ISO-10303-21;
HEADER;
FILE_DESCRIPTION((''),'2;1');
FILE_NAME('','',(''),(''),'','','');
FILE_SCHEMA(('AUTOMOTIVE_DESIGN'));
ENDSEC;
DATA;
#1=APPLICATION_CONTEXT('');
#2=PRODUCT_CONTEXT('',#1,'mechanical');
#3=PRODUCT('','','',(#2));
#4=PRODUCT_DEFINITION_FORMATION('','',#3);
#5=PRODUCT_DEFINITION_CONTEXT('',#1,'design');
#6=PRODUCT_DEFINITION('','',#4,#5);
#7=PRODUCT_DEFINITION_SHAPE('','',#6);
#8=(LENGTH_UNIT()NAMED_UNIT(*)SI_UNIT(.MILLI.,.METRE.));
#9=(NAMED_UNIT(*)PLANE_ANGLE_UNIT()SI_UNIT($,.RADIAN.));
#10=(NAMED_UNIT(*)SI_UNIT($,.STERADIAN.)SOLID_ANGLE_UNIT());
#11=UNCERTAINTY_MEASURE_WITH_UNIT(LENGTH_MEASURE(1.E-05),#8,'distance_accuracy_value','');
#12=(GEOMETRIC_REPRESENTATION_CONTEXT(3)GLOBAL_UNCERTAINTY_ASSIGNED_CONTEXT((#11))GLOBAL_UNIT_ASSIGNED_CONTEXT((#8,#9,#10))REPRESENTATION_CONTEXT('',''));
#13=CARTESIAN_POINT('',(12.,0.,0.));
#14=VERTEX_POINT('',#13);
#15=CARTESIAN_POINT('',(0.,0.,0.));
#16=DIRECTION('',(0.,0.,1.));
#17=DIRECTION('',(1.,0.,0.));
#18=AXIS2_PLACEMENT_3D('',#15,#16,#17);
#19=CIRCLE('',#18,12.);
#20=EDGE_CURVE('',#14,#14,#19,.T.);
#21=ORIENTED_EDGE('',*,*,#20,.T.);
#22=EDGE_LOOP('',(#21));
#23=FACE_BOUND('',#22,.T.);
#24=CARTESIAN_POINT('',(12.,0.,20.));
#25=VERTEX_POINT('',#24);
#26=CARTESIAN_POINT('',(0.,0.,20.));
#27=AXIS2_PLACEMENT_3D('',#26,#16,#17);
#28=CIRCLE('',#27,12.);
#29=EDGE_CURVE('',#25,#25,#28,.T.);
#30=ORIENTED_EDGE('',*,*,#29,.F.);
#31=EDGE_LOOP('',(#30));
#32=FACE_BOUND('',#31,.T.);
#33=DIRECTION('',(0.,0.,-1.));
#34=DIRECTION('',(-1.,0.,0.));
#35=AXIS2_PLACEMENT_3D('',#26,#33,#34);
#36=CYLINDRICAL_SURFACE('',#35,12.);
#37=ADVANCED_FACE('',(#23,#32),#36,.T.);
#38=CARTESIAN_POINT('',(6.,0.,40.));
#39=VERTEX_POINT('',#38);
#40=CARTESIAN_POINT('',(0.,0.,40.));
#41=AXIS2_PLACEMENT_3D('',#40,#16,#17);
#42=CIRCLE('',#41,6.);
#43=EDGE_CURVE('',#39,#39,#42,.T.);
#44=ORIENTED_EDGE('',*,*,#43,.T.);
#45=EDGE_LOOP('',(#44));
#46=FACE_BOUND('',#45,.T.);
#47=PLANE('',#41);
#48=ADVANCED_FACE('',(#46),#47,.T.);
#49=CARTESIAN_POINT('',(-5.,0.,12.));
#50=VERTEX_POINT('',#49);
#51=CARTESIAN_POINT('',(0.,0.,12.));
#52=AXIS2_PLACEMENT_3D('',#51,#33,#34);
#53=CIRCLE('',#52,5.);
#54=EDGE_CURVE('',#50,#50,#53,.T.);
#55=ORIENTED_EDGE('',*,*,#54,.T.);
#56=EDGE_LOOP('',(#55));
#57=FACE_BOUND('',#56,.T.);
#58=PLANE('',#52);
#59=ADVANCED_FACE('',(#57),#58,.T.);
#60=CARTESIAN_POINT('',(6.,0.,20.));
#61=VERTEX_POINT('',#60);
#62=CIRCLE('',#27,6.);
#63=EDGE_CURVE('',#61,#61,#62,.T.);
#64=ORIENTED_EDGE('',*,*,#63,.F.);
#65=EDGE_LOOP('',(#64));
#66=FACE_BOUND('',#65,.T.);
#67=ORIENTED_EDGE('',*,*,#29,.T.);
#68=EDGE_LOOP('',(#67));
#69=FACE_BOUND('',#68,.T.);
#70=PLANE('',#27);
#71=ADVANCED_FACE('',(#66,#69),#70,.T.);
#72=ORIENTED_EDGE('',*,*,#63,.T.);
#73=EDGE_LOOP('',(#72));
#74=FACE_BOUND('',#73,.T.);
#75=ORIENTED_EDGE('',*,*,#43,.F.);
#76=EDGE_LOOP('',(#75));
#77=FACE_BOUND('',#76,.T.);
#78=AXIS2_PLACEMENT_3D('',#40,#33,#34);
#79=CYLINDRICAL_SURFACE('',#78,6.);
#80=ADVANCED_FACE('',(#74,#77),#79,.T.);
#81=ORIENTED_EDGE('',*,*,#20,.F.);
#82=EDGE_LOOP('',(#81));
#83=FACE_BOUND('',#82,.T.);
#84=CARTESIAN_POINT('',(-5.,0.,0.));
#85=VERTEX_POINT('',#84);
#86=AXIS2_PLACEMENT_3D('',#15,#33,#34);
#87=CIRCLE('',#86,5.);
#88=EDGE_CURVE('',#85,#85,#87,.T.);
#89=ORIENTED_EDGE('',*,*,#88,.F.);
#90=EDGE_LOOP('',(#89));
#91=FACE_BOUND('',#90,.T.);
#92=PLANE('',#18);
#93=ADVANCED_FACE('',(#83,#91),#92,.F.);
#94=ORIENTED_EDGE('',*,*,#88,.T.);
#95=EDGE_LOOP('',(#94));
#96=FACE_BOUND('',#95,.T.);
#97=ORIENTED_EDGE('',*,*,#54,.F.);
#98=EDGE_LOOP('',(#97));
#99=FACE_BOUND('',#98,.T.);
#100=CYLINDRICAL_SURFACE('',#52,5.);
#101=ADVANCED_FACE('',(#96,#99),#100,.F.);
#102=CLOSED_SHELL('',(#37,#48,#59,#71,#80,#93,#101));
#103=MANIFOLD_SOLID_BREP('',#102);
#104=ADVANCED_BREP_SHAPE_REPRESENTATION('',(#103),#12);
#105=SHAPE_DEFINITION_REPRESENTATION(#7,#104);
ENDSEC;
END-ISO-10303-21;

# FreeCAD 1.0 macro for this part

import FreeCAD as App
import Part
import Sketcher
Q = App.Units.Quantity

doc = App.newDocument("Part")
body = doc.addObject("PartDesign::Body", "Body")

sketch1 = body.newObject("Sketcher::SketchObject", "Sketch")
sketch1.AttachmentSupport = (doc.getObject("XY_Plane"), [""])
sketch1.MapMode = "FlatFace"
sketch1.addGeometry(Part.Circle(App.Vector(0, 0, 0), App.Vector(0, 0, 1), 12), False)
sketch1.addConstraint([
    Sketcher.Constraint("Coincident", 0, 3, -1, 1),
    Sketcher.Constraint("Diameter", 0, Q("24 mm")),
])
pad1 = body.newObject("PartDesign::Pad", "Pad")
pad1.Profile = sketch1
pad1.Length = 20

sketch2 = body.newObject("Sketcher::SketchObject", "Sketch001")
sketch2.AttachmentSupport = (doc.getObject("XY_Plane"), [""])
sketch2.MapMode = "FlatFace"
sketch2.AttachmentOffset = App.Placement(App.Vector(0, 0, 20), App.Rotation())
sketch2.addGeometry(Part.Circle(App.Vector(0, 0, 0), App.Vector(0, 0, 1), 6), False)
sketch2.addConstraint([
    Sketcher.Constraint("Coincident", 0, 3, -1, 1),
    Sketcher.Constraint("Diameter", 0, Q("12 mm")),
])
pad2 = body.newObject("PartDesign::Pad", "Pad001")
pad2.Profile = sketch2
pad2.Length = 20

sketch3 = body.newObject("Sketcher::SketchObject", "Sketch002")
sketch3.AttachmentSupport = (doc.getObject("XY_Plane"), [""])
sketch3.MapMode = "FlatFace"
sketch3.addGeometry(Part.Circle(App.Vector(0, 0, 0), App.Vector(0, 0, 1), 5), False)
sketch3.addConstraint([
    Sketcher.Constraint("Coincident", 0, 3, -1, 1),
    Sketcher.Constraint("Diameter", 0, Q("10 mm")),
])
pocket1 = body.newObject("PartDesign::Pocket", "Pocket")
pocket1.Profile = sketch3
pocket1.Length = 12
pocket1.Reversed = True

doc.recompute()
